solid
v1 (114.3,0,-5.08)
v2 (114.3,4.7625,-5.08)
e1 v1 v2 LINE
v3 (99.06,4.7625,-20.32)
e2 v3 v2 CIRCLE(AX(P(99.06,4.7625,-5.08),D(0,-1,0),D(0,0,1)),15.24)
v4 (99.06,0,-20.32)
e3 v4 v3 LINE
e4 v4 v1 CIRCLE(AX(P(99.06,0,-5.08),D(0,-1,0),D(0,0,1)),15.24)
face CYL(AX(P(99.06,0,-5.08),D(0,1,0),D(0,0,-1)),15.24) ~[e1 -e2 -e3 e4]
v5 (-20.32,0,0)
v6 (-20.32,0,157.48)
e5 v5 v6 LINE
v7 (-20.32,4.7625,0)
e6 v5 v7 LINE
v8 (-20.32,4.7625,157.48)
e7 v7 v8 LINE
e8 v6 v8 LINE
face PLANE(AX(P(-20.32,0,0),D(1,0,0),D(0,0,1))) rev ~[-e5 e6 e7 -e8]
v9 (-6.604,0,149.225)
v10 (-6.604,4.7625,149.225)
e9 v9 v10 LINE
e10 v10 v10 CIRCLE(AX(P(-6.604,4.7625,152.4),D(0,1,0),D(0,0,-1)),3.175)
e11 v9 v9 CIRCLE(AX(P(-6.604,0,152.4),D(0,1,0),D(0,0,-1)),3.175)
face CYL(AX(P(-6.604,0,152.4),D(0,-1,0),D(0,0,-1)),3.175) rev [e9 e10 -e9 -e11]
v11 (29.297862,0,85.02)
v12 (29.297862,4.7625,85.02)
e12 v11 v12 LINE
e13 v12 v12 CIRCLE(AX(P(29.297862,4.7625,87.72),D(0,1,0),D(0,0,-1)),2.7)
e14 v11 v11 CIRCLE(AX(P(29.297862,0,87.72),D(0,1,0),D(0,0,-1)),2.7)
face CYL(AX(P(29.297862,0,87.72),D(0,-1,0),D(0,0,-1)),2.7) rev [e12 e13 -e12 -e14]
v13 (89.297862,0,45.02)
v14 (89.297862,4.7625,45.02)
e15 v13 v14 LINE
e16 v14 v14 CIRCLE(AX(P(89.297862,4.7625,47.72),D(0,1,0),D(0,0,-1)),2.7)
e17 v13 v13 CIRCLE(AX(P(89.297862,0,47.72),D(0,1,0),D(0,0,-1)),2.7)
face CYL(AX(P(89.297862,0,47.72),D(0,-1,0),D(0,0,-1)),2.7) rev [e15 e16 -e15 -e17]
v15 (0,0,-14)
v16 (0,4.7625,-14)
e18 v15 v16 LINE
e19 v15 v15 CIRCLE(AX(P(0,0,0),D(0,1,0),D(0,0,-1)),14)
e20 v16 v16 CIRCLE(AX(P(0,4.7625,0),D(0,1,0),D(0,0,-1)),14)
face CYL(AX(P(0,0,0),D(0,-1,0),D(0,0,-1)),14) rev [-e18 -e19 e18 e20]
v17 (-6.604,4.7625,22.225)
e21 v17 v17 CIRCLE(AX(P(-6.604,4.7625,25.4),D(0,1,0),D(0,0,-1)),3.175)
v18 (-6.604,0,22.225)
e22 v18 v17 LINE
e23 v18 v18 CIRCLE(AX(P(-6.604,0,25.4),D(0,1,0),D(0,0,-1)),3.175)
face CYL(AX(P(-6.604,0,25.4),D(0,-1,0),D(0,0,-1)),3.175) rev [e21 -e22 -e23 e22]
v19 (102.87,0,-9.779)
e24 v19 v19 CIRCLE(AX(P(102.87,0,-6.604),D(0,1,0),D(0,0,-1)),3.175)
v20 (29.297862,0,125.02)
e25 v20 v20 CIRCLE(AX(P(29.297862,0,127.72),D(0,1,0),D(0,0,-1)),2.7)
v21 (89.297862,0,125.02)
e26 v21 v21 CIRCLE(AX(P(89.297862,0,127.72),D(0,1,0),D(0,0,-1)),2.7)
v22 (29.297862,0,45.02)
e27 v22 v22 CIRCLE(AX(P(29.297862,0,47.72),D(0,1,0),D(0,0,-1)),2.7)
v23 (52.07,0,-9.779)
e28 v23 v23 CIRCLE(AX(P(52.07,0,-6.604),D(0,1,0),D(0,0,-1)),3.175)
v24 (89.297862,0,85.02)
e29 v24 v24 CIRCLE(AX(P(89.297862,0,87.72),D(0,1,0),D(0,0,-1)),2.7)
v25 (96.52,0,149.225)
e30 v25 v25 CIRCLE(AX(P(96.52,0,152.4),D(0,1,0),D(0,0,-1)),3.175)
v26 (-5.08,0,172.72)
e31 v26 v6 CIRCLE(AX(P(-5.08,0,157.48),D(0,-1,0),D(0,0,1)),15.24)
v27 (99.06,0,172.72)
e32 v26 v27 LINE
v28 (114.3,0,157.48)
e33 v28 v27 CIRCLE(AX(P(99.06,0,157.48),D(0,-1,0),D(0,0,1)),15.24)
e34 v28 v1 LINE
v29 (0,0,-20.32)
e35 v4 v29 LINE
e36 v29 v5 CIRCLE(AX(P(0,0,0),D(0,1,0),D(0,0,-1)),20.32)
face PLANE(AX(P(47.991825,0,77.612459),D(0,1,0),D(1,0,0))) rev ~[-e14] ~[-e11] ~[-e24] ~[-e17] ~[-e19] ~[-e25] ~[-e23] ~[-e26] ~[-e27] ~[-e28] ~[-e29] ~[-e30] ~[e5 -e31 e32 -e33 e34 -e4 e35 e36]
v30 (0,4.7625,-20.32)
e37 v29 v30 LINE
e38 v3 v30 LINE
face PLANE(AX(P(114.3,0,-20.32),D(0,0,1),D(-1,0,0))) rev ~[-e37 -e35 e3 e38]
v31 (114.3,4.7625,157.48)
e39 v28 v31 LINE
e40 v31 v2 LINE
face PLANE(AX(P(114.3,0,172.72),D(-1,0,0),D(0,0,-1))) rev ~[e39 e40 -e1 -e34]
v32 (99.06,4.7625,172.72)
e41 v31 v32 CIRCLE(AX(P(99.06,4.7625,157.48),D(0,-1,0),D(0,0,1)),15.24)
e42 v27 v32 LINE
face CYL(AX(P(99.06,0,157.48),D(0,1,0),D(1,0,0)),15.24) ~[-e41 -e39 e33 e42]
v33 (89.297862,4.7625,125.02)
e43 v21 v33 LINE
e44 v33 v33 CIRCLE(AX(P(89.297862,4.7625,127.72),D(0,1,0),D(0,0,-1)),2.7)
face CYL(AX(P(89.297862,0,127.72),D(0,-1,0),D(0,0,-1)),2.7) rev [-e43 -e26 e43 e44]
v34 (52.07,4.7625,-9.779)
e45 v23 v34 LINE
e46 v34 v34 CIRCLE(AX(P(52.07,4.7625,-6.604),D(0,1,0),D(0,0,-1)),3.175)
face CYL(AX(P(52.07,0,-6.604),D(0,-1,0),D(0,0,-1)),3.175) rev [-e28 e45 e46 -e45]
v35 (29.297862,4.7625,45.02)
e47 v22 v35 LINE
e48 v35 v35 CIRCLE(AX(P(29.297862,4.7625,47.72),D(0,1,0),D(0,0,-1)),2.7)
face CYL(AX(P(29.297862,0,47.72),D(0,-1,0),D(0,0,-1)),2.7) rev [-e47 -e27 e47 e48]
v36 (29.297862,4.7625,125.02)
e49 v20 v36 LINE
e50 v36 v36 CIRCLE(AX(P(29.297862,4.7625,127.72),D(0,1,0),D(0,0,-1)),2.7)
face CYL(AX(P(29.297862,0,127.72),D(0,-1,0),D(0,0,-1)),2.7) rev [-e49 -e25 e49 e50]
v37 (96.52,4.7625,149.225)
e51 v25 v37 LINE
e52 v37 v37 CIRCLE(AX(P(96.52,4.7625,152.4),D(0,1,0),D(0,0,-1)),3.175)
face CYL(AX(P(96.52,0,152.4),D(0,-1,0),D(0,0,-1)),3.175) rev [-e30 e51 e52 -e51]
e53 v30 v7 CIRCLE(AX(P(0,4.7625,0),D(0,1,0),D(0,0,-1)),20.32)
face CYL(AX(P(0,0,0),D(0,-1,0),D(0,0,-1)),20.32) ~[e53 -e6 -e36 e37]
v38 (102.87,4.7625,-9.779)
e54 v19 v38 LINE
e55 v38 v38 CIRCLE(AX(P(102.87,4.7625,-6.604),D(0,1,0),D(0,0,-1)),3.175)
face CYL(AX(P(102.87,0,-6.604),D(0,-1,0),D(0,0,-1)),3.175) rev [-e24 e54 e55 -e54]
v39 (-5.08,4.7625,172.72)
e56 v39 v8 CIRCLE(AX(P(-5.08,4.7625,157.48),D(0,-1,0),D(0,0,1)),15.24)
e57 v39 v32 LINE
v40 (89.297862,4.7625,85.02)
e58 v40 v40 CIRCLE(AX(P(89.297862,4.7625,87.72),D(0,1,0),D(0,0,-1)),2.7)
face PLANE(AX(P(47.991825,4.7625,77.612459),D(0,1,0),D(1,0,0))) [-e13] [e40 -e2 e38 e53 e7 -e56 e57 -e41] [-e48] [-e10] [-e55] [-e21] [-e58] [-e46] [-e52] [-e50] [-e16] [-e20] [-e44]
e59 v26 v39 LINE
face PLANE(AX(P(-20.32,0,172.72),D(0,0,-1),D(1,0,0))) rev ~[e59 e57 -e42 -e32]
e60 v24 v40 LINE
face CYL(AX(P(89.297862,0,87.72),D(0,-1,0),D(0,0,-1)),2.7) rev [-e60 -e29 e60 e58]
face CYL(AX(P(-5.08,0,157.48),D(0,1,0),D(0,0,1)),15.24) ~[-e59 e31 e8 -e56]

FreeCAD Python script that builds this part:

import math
import FreeCAD as App
import Part
import Sketcher
Q = App.Units.Quantity


def edges_at(feature, points):
    """Names of the edges that pass closest to the given points."""
    edges = feature.Shape.Edges
    near = lambda p: min(range(len(edges)), key=lambda i: edges[i].distToShape(Part.Vertex(*p))[0])
    return sorted({f"Edge{near(p) + 1}" for p in points})

doc = App.newDocument("Part")
params = doc.addObject("Spreadsheet::Sheet", "Params")
for row, (alias, value) in enumerate([
    ("sketch1_radius", "0.8 in"),
    ("sketch1_diameter", "0.25 in"),
    ("sketch1_width", "4.5 in"),
    ("sketch1_height", "6.8 in"),
    ("pad1_length", "0.1875 in"),
    ("fillet_radius", "0.6 in"),
], start=1):
    params.set(f"A{row}", alias)
    params.set(f"B{row}", "=" + value)
    params.setAlias(f"B{row}", alias)

body = doc.addObject("PartDesign::Body", "Body")

# Sketch on XZ plane
sketch1 = doc.addObject("Sketcher::SketchObject", "Sketch")
body.addObject(sketch1)
sketch1.AttachmentSupport = (doc.XZ_Plane, [""])
sketch1.MapMode = "FlatFace"
sketch1.addGeometry([
    Part.LineSegment(App.Vector(114.3, -20.3, 0), App.Vector(0, -20.3, 0)),  # 0
    Part.ArcOfCircle(Part.Circle(App.Vector(0, 0, 0), App.Vector(0, 0, 1), 20.3), math.radians(180), math.radians(270)),  # 1
    Part.LineSegment(App.Vector(-20.3, 0, 0), App.Vector(-20.3, 172.7, 0)),  # 2
    Part.LineSegment(App.Vector(-20.3, 172.7, 0), App.Vector(114.3, 172.7, 0)),  # 3
    Part.LineSegment(App.Vector(114.3, 172.7, 0), App.Vector(114.3, -20.3, 0)),  # 4
    Part.Circle(App.Vector(-6.6, 152.4, 0), App.Vector(0, 0, 1), 3.2),  # 5
    Part.Circle(App.Vector(29.3, 127.7, 0), App.Vector(0, 0, 1), 2.7),  # 6
    Part.Circle(App.Vector(29.3, 87.7, 0), App.Vector(0, 0, 1), 2.7),  # 7
    Part.Circle(App.Vector(96.5, 152.4, 0), App.Vector(0, 0, 1), 3.2),  # 8
    Part.Circle(App.Vector(89.3, 127.7, 0), App.Vector(0, 0, 1), 2.7),  # 9
    Part.Circle(App.Vector(89.3, 87.7, 0), App.Vector(0, 0, 1), 2.7),  # 10
    Part.Circle(App.Vector(29.3, 47.7, 0), App.Vector(0, 0, 1), 2.7),  # 11
    Part.Circle(App.Vector(-6.6, 25.4, 0), App.Vector(0, 0, 1), 3.2),  # 12
    Part.Circle(App.Vector(0, 0, 0), App.Vector(0, 0, 1), 14),  # 13
    Part.Circle(App.Vector(89.3, 47.7, 0), App.Vector(0, 0, 1), 2.7),  # 14
    Part.Circle(App.Vector(52.1, -6.6, 0), App.Vector(0, 0, 1), 3.2),  # 15
    Part.Circle(App.Vector(102.9, -6.6, 0), App.Vector(0, 0, 1), 3.2),  # 16
], False)
sketch1.addConstraint([
    Sketcher.Constraint("Tangent", 0, 2, 1, 2),
    Sketcher.Constraint("Tangent", 1, 1, 2, 1),
    Sketcher.Constraint("Coincident", 2, 2, 3, 1),
    Sketcher.Constraint("Coincident", 3, 2, 4, 1),
    Sketcher.Constraint("Coincident", 4, 2, 0, 1),
    Sketcher.Constraint("Horizontal", 0),
    Sketcher.Constraint("Vertical", 2),
    Sketcher.Constraint("Horizontal", 3),
    Sketcher.Constraint("Vertical", 4),
    Sketcher.Constraint("Coincident", 1, 3, -1, 1),
    Sketcher.Constraint("Coincident", 13, 3, -1, 1),
    Sketcher.Constraint("Equal", 6, 7),
    Sketcher.Constraint("Equal", 5, 8),
    Sketcher.Constraint("Equal", 7, 9),
    Sketcher.Constraint("Equal", 9, 10),
    Sketcher.Constraint("Equal", 10, 11),
    Sketcher.Constraint("Equal", 8, 12),
    Sketcher.Constraint("Equal", 11, 14),
    Sketcher.Constraint("Equal", 12, 15),
    Sketcher.Constraint("Equal", 15, 16),
    Sketcher.Constraint("Horizontal", 5, 3, 8, 3),
    Sketcher.Constraint("Horizontal", 6, 3, 9, 3),
    Sketcher.Constraint("Horizontal", 7, 3, 10, 3),
    Sketcher.Constraint("Horizontal", 11, 3, 14, 3),
    Sketcher.Constraint("Horizontal", 15, 3, 16, 3),
    Sketcher.Constraint("Vertical", 6, 3, 7, 3),
    Sketcher.Constraint("Vertical", 9, 3, 10, 3),
    Sketcher.Constraint("Vertical", 7, 3, 11, 3),
    Sketcher.Constraint("Vertical", 5, 3, 12, 3),
    Sketcher.Constraint("Vertical", 10, 3, 14, 3),
    Sketcher.Constraint("Radius", 1, Q("0.8 in")),
    Sketcher.Constraint("Diameter", 5, Q("0.25 in")),
    Sketcher.Constraint("DistanceX", 0, 2, 0, 1, Q("4.5 in")),
    Sketcher.Constraint("DistanceY", 2, 1, 2, 2, Q("6.8 in")),
    Sketcher.Constraint("DistanceY", -1, 1, 5, 3, Q("6 in")),
    Sketcher.Constraint("DistanceY", -1, 1, 12, 3, Q("1 in")),
    Sketcher.Constraint("DistanceX", 15, 3, 16, 3, Q("2 in")),
    Sketcher.Constraint("DistanceX", -1, 1, 8, 3, Q("3.8 in")),
    Sketcher.Constraint("Diameter", 6, Q("5.4 mm")),
    Sketcher.Constraint("Diameter", 13, Q("28 mm")),
    Sketcher.Constraint("DistanceX", 5, 3, -1, 1, Q("0.26 in")),
    Sketcher.Constraint("DistanceX", -1, 1, 15, 3, Q("2.05 in")),
    Sketcher.Constraint("DistanceY", 15, 3, -1, 1, Q("0.26 in")),
    Sketcher.Constraint("DistanceY", -1, 1, 6, 3, Q("127.72 mm")),
    Sketcher.Constraint("DistanceY", -1, 1, 7, 3, Q("87.72 mm")),
    Sketcher.Constraint("DistanceY", -1, 1, 11, 3, Q("47.72 mm")),
    Sketcher.Constraint("DistanceX", 6, 3, 9, 3, Q("60 mm")),
    Sketcher.Constraint("DistanceX", -1, 1, 6, 3, Q("29.297862 mm")),
])
sketch1.setExpression("Constraints[30]", "Params.sketch1_radius")
sketch1.setExpression("Constraints[31]", "Params.sketch1_diameter")
sketch1.setExpression("Constraints[32]", "Params.sketch1_width")
sketch1.setExpression("Constraints[33]", "Params.sketch1_height")
pad1 = doc.addObject("PartDesign::Pad", "Pad")
body.addObject(pad1)
pad1.Profile = sketch1
pad1.setExpression("Length", "Params.pad1_length")
pad1.Reversed = True
doc.recompute()

fillet = doc.addObject("PartDesign::Fillet", "Fillet")
body.addObject(fillet)
fillet.Base = (pad1, edges_at(pad1, [(114.3, 2.381, -20.32), (114.3, 2.381, 172.72), (-20.32, 2.381, 172.72)]))
fillet.setExpression("Radius", "Params.fillet_radius")

doc.recompute()
